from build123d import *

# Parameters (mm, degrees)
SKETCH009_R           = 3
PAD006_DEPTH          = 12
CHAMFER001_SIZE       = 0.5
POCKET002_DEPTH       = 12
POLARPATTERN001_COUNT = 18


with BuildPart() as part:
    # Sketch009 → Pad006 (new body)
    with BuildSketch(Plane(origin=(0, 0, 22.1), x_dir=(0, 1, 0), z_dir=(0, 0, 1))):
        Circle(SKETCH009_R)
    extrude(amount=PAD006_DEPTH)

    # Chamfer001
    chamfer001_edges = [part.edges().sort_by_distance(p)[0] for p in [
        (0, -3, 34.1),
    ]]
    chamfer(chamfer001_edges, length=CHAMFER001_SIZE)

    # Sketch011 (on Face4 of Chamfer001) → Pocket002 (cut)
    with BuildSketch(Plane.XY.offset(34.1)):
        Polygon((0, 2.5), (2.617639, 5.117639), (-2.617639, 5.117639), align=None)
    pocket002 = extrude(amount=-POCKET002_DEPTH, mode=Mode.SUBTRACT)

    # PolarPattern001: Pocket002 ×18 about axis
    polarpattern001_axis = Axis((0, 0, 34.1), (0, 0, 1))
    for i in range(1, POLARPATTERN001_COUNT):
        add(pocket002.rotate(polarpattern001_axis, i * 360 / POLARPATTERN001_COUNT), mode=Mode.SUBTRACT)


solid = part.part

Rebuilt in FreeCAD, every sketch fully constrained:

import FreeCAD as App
import Part
import Sketcher

V = App.Vector
Q = App.Units.Quantity


def edges_at(feature, points):
    """Names of the edges that pass closest to the given points."""
    edges = feature.Shape.Edges
    near = lambda p: min(range(len(edges)), key=lambda i: edges[i].distToShape(Part.Vertex(*p))[0])
    return sorted({f"Edge{near(p) + 1}" for p in points})

doc = App.newDocument("Part")
body = doc.addObject("PartDesign::Body", "Body")

sketch1 = body.newObject("Sketcher::SketchObject", "Sketch")
sketch1.AttachmentSupport = (doc.getObject("XY_Plane"), [""])
sketch1.MapMode = "FlatFace"
sketch1.AttachmentOffset = App.Placement(V(0, 0, 22.1), App.Rotation())
sketch1.addGeometry(Part.Circle(V(0, 0, 0), V(0, 0, 1), 3), False)
sketch1.addConstraint([
    Sketcher.Constraint("Coincident", 0, 3, -1, 1),
    Sketcher.Constraint("Diameter", 0, Q("6 mm")),
])
pad1 = body.newObject("PartDesign::Pad", "Pad")
pad1.Profile = sketch1
pad1.Length = 12
doc.recompute()

chamfer = body.newObject("PartDesign::Chamfer", "Chamfer")
chamfer.Base = (pad1, edges_at(pad1, [(0, -3, 34.1)]))
chamfer.Size = 0.5

sketch2 = body.newObject("Sketcher::SketchObject", "Sketch001")
sketch2.AttachmentSupport = (doc.getObject("XY_Plane"), [""])
sketch2.MapMode = "FlatFace"
sketch2.AttachmentOffset = App.Placement(V(0, 0, 34.1), App.Rotation())
sketch2.addGeometry([
    Part.LineSegment(V(0, 2.5, 0), V(2.6, 5.1, 0)),
    Part.LineSegment(V(2.6, 5.1, 0), V(-2.6, 5.1, 0)),
    Part.LineSegment(V(-2.6, 5.1, 0), V(0, 2.5, 0)),
], False)
sketch2.addConstraint([
    Sketcher.Constraint("Coincident", 0, 2, 1, 1),
    Sketcher.Constraint("Coincident", 1, 2, 2, 1),
    Sketcher.Constraint("Coincident", 2, 2, 0, 1),
    Sketcher.Constraint("Horizontal", 1),
    Sketcher.Constraint("PointOnObject", 2, 2, -2),
    Sketcher.Constraint("Perpendicular", 0, 2),
    Sketcher.Constraint("Equal", 0, 2),
    Sketcher.Constraint("DistanceY", -1, 1, 2, 2, Q("2.5 mm")),
    Sketcher.Constraint("Distance", 0, Q("3.701901 mm")),
])
pocket1 = body.newObject("PartDesign::Pocket", "Pocket")
pocket1.Profile = sketch2
pocket1.Length = 12
doc.recompute()

polarpattern = body.newObject("PartDesign::PolarPattern", "PolarPattern")
polarpattern.Originals = [pocket1]
polarpattern.Axis = (doc.getObject("Z_Axis"), [""])
polarpattern.Angle = 360
polarpattern.Occurrences = 18
body.Tip = polarpattern

doc.recompute()
